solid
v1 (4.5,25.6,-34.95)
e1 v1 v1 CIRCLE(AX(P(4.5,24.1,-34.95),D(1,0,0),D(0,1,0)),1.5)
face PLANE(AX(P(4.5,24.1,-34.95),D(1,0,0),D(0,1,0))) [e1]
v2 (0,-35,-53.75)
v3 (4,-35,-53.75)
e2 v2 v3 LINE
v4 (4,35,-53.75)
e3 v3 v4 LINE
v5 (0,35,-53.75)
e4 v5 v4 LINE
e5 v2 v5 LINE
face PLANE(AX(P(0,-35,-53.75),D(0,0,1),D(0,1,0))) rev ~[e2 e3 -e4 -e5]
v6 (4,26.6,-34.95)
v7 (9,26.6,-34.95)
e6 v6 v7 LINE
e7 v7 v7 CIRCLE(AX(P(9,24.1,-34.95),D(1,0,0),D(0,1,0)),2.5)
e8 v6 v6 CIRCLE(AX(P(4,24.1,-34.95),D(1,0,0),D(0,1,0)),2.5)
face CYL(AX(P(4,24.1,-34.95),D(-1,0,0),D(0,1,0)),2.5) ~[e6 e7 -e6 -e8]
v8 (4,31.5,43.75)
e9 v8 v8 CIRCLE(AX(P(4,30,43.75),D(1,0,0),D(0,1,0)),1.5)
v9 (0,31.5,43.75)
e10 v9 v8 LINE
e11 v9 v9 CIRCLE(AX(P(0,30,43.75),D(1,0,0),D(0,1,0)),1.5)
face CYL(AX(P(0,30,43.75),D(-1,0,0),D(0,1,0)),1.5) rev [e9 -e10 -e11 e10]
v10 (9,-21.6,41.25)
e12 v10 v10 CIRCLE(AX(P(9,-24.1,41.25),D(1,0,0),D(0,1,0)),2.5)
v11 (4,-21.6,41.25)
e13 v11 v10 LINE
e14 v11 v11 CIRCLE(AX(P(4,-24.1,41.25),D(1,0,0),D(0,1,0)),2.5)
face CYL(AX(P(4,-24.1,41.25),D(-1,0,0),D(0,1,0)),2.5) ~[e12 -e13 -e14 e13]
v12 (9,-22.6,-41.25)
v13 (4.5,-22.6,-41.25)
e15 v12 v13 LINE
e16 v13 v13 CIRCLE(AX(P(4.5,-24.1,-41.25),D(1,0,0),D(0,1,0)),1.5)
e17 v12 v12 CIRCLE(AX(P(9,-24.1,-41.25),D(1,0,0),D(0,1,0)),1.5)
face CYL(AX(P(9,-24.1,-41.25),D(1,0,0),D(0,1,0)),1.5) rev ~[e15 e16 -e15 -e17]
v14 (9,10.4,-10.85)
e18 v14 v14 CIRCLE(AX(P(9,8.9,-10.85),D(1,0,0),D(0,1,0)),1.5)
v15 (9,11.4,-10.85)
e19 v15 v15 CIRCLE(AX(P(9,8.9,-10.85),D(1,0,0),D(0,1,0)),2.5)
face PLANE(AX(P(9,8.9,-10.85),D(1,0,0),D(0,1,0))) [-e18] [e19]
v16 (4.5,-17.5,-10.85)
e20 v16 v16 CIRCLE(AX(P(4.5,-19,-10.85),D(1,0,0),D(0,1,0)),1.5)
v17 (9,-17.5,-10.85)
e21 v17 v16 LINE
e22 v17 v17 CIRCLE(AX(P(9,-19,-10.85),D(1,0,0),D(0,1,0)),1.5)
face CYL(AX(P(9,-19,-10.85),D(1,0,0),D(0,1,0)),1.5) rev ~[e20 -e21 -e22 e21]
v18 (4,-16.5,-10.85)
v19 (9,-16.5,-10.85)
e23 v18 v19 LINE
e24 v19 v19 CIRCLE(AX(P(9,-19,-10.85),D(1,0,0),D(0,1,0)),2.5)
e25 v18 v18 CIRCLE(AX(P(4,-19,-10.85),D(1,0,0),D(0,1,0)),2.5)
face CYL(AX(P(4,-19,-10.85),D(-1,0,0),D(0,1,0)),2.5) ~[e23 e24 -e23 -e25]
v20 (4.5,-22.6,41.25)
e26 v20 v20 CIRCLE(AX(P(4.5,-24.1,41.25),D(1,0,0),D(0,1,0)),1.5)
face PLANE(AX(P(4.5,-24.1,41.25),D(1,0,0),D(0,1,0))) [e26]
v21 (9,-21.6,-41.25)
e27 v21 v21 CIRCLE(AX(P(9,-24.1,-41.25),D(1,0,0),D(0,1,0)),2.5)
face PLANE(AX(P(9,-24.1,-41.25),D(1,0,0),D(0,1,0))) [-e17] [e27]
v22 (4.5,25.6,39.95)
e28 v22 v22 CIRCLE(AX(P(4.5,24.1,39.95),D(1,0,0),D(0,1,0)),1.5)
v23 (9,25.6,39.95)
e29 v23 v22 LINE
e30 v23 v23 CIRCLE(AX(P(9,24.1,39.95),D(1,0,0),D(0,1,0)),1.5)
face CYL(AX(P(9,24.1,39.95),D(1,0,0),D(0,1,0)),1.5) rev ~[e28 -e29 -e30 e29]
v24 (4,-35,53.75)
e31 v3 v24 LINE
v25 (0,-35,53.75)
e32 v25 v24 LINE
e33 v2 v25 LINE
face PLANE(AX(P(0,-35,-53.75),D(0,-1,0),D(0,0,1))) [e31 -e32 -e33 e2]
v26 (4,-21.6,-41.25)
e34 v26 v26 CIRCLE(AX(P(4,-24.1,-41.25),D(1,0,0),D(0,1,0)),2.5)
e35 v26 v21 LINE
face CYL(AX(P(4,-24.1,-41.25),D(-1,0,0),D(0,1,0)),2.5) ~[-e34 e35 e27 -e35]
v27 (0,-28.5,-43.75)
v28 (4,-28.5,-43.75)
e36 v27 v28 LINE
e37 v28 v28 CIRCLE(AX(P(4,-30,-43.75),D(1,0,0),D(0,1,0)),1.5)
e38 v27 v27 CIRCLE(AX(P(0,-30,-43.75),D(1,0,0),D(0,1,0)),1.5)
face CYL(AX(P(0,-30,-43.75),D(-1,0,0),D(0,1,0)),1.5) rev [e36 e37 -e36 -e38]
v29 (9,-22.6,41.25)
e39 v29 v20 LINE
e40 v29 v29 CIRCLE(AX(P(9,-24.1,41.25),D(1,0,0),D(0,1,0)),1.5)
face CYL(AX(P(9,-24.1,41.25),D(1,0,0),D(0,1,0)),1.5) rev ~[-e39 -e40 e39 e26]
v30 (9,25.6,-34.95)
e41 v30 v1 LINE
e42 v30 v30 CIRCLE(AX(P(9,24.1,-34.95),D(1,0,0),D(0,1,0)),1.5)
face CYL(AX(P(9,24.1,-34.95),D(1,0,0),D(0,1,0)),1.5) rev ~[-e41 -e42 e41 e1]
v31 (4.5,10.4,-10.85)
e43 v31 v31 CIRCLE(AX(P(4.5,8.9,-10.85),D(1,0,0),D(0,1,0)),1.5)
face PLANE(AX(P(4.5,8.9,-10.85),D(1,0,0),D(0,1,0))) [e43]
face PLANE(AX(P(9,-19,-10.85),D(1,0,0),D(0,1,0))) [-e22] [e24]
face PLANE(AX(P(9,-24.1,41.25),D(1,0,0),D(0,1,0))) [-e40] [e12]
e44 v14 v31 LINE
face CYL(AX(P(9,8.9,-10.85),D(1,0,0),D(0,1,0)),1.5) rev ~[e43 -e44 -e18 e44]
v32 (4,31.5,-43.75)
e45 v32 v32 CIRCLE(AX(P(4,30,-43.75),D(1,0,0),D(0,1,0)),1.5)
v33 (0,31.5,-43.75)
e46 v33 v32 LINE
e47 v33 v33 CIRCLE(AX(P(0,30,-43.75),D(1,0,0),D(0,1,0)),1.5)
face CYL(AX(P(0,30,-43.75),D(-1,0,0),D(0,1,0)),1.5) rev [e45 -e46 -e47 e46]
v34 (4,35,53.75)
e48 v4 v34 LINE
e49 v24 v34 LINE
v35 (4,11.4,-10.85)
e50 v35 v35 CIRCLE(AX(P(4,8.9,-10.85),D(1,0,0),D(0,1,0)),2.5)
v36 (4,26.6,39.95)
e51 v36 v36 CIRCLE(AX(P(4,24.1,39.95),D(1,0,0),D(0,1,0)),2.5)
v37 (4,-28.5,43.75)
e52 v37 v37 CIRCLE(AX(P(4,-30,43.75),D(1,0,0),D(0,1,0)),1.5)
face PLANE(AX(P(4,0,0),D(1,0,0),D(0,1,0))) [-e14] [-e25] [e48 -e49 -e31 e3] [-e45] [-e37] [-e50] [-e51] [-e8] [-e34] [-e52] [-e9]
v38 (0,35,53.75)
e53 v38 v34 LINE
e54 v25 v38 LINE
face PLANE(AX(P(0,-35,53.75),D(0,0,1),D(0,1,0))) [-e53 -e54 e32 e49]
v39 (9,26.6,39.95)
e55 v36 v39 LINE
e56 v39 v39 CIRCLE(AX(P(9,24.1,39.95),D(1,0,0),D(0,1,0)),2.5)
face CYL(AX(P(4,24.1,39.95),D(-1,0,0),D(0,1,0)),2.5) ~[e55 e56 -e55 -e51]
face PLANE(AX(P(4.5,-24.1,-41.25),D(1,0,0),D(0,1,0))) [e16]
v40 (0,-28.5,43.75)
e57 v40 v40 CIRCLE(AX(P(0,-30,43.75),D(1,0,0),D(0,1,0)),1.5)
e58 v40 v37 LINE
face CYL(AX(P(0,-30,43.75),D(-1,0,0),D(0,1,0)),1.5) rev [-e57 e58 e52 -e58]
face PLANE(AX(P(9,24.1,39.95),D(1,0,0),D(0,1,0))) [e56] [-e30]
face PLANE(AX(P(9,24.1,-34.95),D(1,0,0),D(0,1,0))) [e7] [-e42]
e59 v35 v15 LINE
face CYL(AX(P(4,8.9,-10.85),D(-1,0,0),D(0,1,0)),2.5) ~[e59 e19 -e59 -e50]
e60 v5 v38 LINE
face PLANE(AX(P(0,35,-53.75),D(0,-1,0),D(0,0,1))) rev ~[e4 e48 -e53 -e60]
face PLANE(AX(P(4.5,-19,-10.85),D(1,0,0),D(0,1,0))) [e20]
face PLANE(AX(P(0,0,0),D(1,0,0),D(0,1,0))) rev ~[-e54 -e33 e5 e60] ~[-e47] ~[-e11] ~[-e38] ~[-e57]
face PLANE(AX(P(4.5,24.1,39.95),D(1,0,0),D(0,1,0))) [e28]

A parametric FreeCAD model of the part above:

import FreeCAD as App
import Part
import Sketcher
from FreeCAD import Vector


def add_polygon(sketch, points):
    """Adds a closed chain of lines whose ends are joined by coincident constraints."""
    first, n = sketch.GeometryCount, len(points)
    for a, b in zip(points, points[1:] + points[:1]):
        sketch.addGeometry(Part.LineSegment(App.Vector(*a, 0), App.Vector(*b, 0)), False)
    for i in range(n):
        sketch.addConstraint(Sketcher.Constraint("Coincident", first + i, 2, first + (i + 1) % n, 1))

doc = App.newDocument("Part")
body = doc.addObject("PartDesign::Body", "Body")

sketch1 = body.newObject("Sketcher::SketchObject", "Sketch")
sketch1.AttachmentSupport = (doc.getObject("YZ_Plane"), [""])
sketch1.MapMode = "FlatFace"
add_polygon(sketch1, [(-35, 53.8), (-35, -53.8), (35, -53.8), (35, 53.8)])
sketch1.addGeometry(Part.Circle(Vector(-30, -43.8, 0), Vector(0, 0, 1), 1.5), False)
sketch1.addGeometry(Part.Circle(Vector(30, -43.8, 0), Vector(0, 0, 1), 1.5), False)
sketch1.addGeometry(Part.Circle(Vector(-30, 43.8, 0), Vector(0, 0, 1), 1.5), False)
sketch1.addGeometry(Part.Circle(Vector(30, 43.8, 0), Vector(0, 0, 1), 1.5), False)
sketch1.addConstraint([
    Sketcher.Constraint("Vertical", 0),
    Sketcher.Constraint("Horizontal", 1),
    Sketcher.Constraint("Vertical", 2),
    Sketcher.Constraint("Horizontal", 3),
    Sketcher.Constraint("Equal", 4, 5),
    Sketcher.Constraint("Equal", 5, 6),
    Sketcher.Constraint("Equal", 6, 7),
    Sketcher.Constraint("Symmetric", 5, 3, 6, 3, -1, 1),
    Sketcher.Constraint("Symmetric", 4, 3, 7, 3, -1, 1),
    Sketcher.Constraint("Symmetric", 0, 2, 2, 2, -1, 1),
    Sketcher.Constraint("Symmetric", 4, 3, 5, 3, -2),
    Sketcher.Constraint("Diameter", 4, 3.0),
    Sketcher.Constraint("DistanceX", 1, 1, 1, 2, 70.0),
    Sketcher.Constraint("DistanceY", 0, 2, 0, 1, 107.5),
    Sketcher.Constraint("DistanceX", 4, 3, -1, 1, 30.0),
    Sketcher.Constraint("DistanceY", 0, 2, 4, 3, 10.0),
])
pad1 = body.newObject("PartDesign::Pad", "Pad")
pad1.Profile = sketch1
pad1.Length = 4

sketch2 = body.newObject("Sketcher::SketchObject", "Sketch001")
sketch2.AttachmentSupport = (doc.getObject("YZ_Plane"), [""])
sketch2.MapMode = "FlatFace"
sketch2.AttachmentOffset = App.Placement(Vector(0, 0, 4), App.Rotation())
sketch2.addGeometry([
    Part.Circle(Vector(-24.1, 41.2, 0), Vector(0, 0, 1), 2.5),
    Part.Circle(Vector(24.1, 40, 0), Vector(0, 0, 1), 2.5),
    Part.Circle(Vector(-19, -10.8, 0), Vector(0, 0, 1), 2.5),
    Part.Circle(Vector(8.9, -10.8, 0), Vector(0, 0, 1), 2.5),
    Part.Circle(Vector(24.1, -35, 0), Vector(0, 0, 1), 2.5),
    Part.Circle(Vector(-24.1, -41.2, 0), Vector(0, 0, 1), 2.5),
], False)
sketch2.addConstraint([
    Sketcher.Constraint("Equal", 0, 1),
    Sketcher.Constraint("Equal", 1, 2),
    Sketcher.Constraint("Equal", 2, 3),
    Sketcher.Constraint("Equal", 3, 4),
    Sketcher.Constraint("Equal", 4, 5),
    Sketcher.Constraint("Symmetric", 0, 3, 5, 3, -1),
    Sketcher.Constraint("Horizontal", 2, 3, 3, 3),
    Sketcher.Constraint("Vertical", 1, 3, 4, 3),
    Sketcher.Constraint("Diameter", 0, 5.0),
    Sketcher.Constraint("DistanceX", 2, 3, -1, 1, 19.0),
    Sketcher.Constraint("DistanceX", 0, 3, 3, 3, 33.0),
    Sketcher.Constraint("DistanceX", 0, 3, -1, 1, 24.1),
    Sketcher.Constraint("DistanceX", -1, 1, 1, 3, 24.1),
    Sketcher.Constraint("DistanceY", 1, 3, 0, 3, 1.3),
    Sketcher.Constraint("DistanceY", 2, 3, 0, 3, 52.1),
    Sketcher.Constraint("DistanceY", 4, 3, 3, 3, 24.1),
    Sketcher.Constraint("DistanceY", 5, 3, 2, 3, 30.4),
])
pad2 = body.newObject("PartDesign::Pad", "Pad001")
pad2.Profile = sketch2
pad2.Length = 5

sketch3 = body.newObject("Sketcher::SketchObject", "Sketch002")
sketch3.AttachmentSupport = (doc.getObject("YZ_Plane"), [""])
sketch3.MapMode = "FlatFace"
sketch3.AttachmentOffset = App.Placement(Vector(0, 0, 9), App.Rotation())
sketch3.addGeometry([
    Part.Circle(Vector(-24.1, 41.2, 0), Vector(0, 0, 1), 1.5),
    Part.Circle(Vector(24.1, 40, 0), Vector(0, 0, 1), 1.5),
    Part.Circle(Vector(-19, -10.8, 0), Vector(0, 0, 1), 1.5),
    Part.Circle(Vector(8.9, -10.8, 0), Vector(0, 0, 1), 1.5),
    Part.Circle(Vector(24.1, -35, 0), Vector(0, 0, 1), 1.5),
    Part.Circle(Vector(-24.1, -41.2, 0), Vector(0, 0, 1), 1.5),
], False)
sketch3.addConstraint([
    Sketcher.Constraint("Equal", 0, 1),
    Sketcher.Constraint("Equal", 1, 2),
    Sketcher.Constraint("Equal", 2, 3),
    Sketcher.Constraint("Equal", 3, 4),
    Sketcher.Constraint("Equal", 4, 5),
    Sketcher.Constraint("Symmetric", 0, 3, 5, 3, -1),
    Sketcher.Constraint("Horizontal", 2, 3, 3, 3),
    Sketcher.Constraint("Vertical", 1, 3, 4, 3),
    Sketcher.Constraint("Diameter", 0, 3.0),
    Sketcher.Constraint("DistanceX", 2, 3, -1, 1, 19.0),
    Sketcher.Constraint("DistanceX", 0, 3, 3, 3, 33.0),
    Sketcher.Constraint("DistanceX", 0, 3, -1, 1, 24.1),
    Sketcher.Constraint("DistanceX", -1, 1, 1, 3, 24.1),
    Sketcher.Constraint("DistanceY", 1, 3, 0, 3, 1.3),
    Sketcher.Constraint("DistanceY", 2, 3, 0, 3, 52.1),
    Sketcher.Constraint("DistanceY", 4, 3, 3, 3, 24.1),
    Sketcher.Constraint("DistanceY", 5, 3, 2, 3, 30.4),
])
pocket1 = body.newObject("PartDesign::Pocket", "Pocket")
pocket1.Profile = sketch3
pocket1.Length = 4.5

doc.recompute()
